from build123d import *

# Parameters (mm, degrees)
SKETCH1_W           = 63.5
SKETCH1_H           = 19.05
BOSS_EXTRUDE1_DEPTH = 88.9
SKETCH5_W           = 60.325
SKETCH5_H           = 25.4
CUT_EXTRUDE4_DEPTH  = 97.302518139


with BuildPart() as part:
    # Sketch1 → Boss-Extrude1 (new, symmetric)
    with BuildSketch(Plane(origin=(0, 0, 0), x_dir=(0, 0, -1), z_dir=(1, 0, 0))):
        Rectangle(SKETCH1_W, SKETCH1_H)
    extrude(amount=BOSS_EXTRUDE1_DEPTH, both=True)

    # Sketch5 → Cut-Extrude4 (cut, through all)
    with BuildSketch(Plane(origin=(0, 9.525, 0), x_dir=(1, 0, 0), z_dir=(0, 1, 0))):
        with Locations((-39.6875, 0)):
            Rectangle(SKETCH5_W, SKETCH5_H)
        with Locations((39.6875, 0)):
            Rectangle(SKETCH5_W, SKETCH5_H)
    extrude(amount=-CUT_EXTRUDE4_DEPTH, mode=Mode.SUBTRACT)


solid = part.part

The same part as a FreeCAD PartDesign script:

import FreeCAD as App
import Part
import Sketcher
from FreeCAD import Vector
Q = App.Units.Quantity

doc = App.newDocument("Part")
body = doc.addObject("PartDesign::Body", "Body")

# Sketch on YZ plane
sketch1 = body.newObject("Sketcher::SketchObject", "Sketch")
sketch1.AttachmentSupport = (doc.getObject("YZ_Plane"), [""])
sketch1.MapMode = "FlatFace"
sketch1.addGeometry([
    Part.LineSegment(Vector(10, 32, 0), Vector(-10, 32, 0)),
    Part.LineSegment(Vector(-10, 32, 0), Vector(-10, -32, 0)),
    Part.LineSegment(Vector(-10, -32, 0), Vector(10, -32, 0)),
    Part.LineSegment(Vector(10, -32, 0), Vector(10, 32, 0)),
], False)
sketch1.addConstraint([
    Sketcher.Constraint("Coincident", 0, 2, 1, 1),
    Sketcher.Constraint("Coincident", 1, 2, 2, 1),
    Sketcher.Constraint("Coincident", 2, 2, 3, 1),
    Sketcher.Constraint("Coincident", 3, 2, 0, 1),
    Sketcher.Constraint("Horizontal", 0),
    Sketcher.Constraint("Vertical", 1),
    Sketcher.Constraint("Horizontal", 2),
    Sketcher.Constraint("Vertical", 3),
    Sketcher.Constraint("Symmetric", 0, 2, 2, 2, -1, 1),
    Sketcher.Constraint("DistanceY", 1, 2, 1, 1, Q("2.5 in")),
    Sketcher.Constraint("DistanceX", 0, 2, 0, 1, Q("0.75 in")),
])
pad1 = body.newObject("PartDesign::Pad", "Pad")
pad1.Profile = sketch1
pad1.Length = Q("7 in")
pad1.Midplane = True

# Sketch on XZ plane
sketch2 = body.newObject("Sketcher::SketchObject", "Sketch001")
sketch2.AttachmentSupport = (doc.getObject("XZ_Plane"), [""])
sketch2.MapMode = "FlatFace"
sketch2.AttachmentOffset = App.Placement(Vector(0, 0, -0.375 * 25.4), App.Rotation())
sketch2.addGeometry([
    Part.LineSegment(Vector(-70, -13, 0), Vector(-70, 13, 0)),  # 0
    Part.LineSegment(Vector(-70, 13, 0), Vector(-10, 13, 0)),  # 1
    Part.LineSegment(Vector(-10, 13, 0), Vector(-10, -13, 0)),  # 2
    Part.LineSegment(Vector(-10, -13, 0), Vector(-70, -13, 0)),  # 3
    Part.LineSegment(Vector(10, -13, 0), Vector(10, 13, 0)),  # 4
    Part.LineSegment(Vector(10, 13, 0), Vector(70, 13, 0)),  # 5
    Part.LineSegment(Vector(70, 13, 0), Vector(70, -13, 0)),  # 6
    Part.LineSegment(Vector(70, -13, 0), Vector(10, -13, 0)),  # 7
], False)
sketch2.addConstraint([
    Sketcher.Constraint("Coincident", 0, 2, 1, 1),
    Sketcher.Constraint("Coincident", 1, 2, 2, 1),
    Sketcher.Constraint("Coincident", 2, 2, 3, 1),
    Sketcher.Constraint("Coincident", 3, 2, 0, 1),
    Sketcher.Constraint("Coincident", 4, 2, 5, 1),
    Sketcher.Constraint("Coincident", 5, 2, 6, 1),
    Sketcher.Constraint("Coincident", 6, 2, 7, 1),
    Sketcher.Constraint("Coincident", 7, 2, 4, 1),
    Sketcher.Constraint("Vertical", 0),
    Sketcher.Constraint("Horizontal", 1),
    Sketcher.Constraint("Vertical", 2),
    Sketcher.Constraint("Horizontal", 3),
    Sketcher.Constraint("Vertical", 4),
    Sketcher.Constraint("Horizontal", 5),
    Sketcher.Constraint("Vertical", 6),
    Sketcher.Constraint("Horizontal", 7),
    Sketcher.Constraint("Symmetric", 2, 2, 4, 2, -1, 1),
    Sketcher.Constraint("Symmetric", 0, 2, 6, 2, -1, 1),
    Sketcher.Constraint("Horizontal", 1, 2, 4, 2),
    Sketcher.Constraint("DistanceY", 0, 1, 0, 2, Q("1 in")),
    Sketcher.Constraint("DistanceX", 0, 2, 5, 2, Q("5.5 in")),
    Sketcher.Constraint("DistanceX", 1, 1, 1, 2, Q("2.375 in")),
])
pocket1 = body.newObject("PartDesign::Pocket", "Pocket")
pocket1.Profile = sketch2
pocket1.Type = "ThroughAll"
pocket1.Reversed = True

doc.recompute()
